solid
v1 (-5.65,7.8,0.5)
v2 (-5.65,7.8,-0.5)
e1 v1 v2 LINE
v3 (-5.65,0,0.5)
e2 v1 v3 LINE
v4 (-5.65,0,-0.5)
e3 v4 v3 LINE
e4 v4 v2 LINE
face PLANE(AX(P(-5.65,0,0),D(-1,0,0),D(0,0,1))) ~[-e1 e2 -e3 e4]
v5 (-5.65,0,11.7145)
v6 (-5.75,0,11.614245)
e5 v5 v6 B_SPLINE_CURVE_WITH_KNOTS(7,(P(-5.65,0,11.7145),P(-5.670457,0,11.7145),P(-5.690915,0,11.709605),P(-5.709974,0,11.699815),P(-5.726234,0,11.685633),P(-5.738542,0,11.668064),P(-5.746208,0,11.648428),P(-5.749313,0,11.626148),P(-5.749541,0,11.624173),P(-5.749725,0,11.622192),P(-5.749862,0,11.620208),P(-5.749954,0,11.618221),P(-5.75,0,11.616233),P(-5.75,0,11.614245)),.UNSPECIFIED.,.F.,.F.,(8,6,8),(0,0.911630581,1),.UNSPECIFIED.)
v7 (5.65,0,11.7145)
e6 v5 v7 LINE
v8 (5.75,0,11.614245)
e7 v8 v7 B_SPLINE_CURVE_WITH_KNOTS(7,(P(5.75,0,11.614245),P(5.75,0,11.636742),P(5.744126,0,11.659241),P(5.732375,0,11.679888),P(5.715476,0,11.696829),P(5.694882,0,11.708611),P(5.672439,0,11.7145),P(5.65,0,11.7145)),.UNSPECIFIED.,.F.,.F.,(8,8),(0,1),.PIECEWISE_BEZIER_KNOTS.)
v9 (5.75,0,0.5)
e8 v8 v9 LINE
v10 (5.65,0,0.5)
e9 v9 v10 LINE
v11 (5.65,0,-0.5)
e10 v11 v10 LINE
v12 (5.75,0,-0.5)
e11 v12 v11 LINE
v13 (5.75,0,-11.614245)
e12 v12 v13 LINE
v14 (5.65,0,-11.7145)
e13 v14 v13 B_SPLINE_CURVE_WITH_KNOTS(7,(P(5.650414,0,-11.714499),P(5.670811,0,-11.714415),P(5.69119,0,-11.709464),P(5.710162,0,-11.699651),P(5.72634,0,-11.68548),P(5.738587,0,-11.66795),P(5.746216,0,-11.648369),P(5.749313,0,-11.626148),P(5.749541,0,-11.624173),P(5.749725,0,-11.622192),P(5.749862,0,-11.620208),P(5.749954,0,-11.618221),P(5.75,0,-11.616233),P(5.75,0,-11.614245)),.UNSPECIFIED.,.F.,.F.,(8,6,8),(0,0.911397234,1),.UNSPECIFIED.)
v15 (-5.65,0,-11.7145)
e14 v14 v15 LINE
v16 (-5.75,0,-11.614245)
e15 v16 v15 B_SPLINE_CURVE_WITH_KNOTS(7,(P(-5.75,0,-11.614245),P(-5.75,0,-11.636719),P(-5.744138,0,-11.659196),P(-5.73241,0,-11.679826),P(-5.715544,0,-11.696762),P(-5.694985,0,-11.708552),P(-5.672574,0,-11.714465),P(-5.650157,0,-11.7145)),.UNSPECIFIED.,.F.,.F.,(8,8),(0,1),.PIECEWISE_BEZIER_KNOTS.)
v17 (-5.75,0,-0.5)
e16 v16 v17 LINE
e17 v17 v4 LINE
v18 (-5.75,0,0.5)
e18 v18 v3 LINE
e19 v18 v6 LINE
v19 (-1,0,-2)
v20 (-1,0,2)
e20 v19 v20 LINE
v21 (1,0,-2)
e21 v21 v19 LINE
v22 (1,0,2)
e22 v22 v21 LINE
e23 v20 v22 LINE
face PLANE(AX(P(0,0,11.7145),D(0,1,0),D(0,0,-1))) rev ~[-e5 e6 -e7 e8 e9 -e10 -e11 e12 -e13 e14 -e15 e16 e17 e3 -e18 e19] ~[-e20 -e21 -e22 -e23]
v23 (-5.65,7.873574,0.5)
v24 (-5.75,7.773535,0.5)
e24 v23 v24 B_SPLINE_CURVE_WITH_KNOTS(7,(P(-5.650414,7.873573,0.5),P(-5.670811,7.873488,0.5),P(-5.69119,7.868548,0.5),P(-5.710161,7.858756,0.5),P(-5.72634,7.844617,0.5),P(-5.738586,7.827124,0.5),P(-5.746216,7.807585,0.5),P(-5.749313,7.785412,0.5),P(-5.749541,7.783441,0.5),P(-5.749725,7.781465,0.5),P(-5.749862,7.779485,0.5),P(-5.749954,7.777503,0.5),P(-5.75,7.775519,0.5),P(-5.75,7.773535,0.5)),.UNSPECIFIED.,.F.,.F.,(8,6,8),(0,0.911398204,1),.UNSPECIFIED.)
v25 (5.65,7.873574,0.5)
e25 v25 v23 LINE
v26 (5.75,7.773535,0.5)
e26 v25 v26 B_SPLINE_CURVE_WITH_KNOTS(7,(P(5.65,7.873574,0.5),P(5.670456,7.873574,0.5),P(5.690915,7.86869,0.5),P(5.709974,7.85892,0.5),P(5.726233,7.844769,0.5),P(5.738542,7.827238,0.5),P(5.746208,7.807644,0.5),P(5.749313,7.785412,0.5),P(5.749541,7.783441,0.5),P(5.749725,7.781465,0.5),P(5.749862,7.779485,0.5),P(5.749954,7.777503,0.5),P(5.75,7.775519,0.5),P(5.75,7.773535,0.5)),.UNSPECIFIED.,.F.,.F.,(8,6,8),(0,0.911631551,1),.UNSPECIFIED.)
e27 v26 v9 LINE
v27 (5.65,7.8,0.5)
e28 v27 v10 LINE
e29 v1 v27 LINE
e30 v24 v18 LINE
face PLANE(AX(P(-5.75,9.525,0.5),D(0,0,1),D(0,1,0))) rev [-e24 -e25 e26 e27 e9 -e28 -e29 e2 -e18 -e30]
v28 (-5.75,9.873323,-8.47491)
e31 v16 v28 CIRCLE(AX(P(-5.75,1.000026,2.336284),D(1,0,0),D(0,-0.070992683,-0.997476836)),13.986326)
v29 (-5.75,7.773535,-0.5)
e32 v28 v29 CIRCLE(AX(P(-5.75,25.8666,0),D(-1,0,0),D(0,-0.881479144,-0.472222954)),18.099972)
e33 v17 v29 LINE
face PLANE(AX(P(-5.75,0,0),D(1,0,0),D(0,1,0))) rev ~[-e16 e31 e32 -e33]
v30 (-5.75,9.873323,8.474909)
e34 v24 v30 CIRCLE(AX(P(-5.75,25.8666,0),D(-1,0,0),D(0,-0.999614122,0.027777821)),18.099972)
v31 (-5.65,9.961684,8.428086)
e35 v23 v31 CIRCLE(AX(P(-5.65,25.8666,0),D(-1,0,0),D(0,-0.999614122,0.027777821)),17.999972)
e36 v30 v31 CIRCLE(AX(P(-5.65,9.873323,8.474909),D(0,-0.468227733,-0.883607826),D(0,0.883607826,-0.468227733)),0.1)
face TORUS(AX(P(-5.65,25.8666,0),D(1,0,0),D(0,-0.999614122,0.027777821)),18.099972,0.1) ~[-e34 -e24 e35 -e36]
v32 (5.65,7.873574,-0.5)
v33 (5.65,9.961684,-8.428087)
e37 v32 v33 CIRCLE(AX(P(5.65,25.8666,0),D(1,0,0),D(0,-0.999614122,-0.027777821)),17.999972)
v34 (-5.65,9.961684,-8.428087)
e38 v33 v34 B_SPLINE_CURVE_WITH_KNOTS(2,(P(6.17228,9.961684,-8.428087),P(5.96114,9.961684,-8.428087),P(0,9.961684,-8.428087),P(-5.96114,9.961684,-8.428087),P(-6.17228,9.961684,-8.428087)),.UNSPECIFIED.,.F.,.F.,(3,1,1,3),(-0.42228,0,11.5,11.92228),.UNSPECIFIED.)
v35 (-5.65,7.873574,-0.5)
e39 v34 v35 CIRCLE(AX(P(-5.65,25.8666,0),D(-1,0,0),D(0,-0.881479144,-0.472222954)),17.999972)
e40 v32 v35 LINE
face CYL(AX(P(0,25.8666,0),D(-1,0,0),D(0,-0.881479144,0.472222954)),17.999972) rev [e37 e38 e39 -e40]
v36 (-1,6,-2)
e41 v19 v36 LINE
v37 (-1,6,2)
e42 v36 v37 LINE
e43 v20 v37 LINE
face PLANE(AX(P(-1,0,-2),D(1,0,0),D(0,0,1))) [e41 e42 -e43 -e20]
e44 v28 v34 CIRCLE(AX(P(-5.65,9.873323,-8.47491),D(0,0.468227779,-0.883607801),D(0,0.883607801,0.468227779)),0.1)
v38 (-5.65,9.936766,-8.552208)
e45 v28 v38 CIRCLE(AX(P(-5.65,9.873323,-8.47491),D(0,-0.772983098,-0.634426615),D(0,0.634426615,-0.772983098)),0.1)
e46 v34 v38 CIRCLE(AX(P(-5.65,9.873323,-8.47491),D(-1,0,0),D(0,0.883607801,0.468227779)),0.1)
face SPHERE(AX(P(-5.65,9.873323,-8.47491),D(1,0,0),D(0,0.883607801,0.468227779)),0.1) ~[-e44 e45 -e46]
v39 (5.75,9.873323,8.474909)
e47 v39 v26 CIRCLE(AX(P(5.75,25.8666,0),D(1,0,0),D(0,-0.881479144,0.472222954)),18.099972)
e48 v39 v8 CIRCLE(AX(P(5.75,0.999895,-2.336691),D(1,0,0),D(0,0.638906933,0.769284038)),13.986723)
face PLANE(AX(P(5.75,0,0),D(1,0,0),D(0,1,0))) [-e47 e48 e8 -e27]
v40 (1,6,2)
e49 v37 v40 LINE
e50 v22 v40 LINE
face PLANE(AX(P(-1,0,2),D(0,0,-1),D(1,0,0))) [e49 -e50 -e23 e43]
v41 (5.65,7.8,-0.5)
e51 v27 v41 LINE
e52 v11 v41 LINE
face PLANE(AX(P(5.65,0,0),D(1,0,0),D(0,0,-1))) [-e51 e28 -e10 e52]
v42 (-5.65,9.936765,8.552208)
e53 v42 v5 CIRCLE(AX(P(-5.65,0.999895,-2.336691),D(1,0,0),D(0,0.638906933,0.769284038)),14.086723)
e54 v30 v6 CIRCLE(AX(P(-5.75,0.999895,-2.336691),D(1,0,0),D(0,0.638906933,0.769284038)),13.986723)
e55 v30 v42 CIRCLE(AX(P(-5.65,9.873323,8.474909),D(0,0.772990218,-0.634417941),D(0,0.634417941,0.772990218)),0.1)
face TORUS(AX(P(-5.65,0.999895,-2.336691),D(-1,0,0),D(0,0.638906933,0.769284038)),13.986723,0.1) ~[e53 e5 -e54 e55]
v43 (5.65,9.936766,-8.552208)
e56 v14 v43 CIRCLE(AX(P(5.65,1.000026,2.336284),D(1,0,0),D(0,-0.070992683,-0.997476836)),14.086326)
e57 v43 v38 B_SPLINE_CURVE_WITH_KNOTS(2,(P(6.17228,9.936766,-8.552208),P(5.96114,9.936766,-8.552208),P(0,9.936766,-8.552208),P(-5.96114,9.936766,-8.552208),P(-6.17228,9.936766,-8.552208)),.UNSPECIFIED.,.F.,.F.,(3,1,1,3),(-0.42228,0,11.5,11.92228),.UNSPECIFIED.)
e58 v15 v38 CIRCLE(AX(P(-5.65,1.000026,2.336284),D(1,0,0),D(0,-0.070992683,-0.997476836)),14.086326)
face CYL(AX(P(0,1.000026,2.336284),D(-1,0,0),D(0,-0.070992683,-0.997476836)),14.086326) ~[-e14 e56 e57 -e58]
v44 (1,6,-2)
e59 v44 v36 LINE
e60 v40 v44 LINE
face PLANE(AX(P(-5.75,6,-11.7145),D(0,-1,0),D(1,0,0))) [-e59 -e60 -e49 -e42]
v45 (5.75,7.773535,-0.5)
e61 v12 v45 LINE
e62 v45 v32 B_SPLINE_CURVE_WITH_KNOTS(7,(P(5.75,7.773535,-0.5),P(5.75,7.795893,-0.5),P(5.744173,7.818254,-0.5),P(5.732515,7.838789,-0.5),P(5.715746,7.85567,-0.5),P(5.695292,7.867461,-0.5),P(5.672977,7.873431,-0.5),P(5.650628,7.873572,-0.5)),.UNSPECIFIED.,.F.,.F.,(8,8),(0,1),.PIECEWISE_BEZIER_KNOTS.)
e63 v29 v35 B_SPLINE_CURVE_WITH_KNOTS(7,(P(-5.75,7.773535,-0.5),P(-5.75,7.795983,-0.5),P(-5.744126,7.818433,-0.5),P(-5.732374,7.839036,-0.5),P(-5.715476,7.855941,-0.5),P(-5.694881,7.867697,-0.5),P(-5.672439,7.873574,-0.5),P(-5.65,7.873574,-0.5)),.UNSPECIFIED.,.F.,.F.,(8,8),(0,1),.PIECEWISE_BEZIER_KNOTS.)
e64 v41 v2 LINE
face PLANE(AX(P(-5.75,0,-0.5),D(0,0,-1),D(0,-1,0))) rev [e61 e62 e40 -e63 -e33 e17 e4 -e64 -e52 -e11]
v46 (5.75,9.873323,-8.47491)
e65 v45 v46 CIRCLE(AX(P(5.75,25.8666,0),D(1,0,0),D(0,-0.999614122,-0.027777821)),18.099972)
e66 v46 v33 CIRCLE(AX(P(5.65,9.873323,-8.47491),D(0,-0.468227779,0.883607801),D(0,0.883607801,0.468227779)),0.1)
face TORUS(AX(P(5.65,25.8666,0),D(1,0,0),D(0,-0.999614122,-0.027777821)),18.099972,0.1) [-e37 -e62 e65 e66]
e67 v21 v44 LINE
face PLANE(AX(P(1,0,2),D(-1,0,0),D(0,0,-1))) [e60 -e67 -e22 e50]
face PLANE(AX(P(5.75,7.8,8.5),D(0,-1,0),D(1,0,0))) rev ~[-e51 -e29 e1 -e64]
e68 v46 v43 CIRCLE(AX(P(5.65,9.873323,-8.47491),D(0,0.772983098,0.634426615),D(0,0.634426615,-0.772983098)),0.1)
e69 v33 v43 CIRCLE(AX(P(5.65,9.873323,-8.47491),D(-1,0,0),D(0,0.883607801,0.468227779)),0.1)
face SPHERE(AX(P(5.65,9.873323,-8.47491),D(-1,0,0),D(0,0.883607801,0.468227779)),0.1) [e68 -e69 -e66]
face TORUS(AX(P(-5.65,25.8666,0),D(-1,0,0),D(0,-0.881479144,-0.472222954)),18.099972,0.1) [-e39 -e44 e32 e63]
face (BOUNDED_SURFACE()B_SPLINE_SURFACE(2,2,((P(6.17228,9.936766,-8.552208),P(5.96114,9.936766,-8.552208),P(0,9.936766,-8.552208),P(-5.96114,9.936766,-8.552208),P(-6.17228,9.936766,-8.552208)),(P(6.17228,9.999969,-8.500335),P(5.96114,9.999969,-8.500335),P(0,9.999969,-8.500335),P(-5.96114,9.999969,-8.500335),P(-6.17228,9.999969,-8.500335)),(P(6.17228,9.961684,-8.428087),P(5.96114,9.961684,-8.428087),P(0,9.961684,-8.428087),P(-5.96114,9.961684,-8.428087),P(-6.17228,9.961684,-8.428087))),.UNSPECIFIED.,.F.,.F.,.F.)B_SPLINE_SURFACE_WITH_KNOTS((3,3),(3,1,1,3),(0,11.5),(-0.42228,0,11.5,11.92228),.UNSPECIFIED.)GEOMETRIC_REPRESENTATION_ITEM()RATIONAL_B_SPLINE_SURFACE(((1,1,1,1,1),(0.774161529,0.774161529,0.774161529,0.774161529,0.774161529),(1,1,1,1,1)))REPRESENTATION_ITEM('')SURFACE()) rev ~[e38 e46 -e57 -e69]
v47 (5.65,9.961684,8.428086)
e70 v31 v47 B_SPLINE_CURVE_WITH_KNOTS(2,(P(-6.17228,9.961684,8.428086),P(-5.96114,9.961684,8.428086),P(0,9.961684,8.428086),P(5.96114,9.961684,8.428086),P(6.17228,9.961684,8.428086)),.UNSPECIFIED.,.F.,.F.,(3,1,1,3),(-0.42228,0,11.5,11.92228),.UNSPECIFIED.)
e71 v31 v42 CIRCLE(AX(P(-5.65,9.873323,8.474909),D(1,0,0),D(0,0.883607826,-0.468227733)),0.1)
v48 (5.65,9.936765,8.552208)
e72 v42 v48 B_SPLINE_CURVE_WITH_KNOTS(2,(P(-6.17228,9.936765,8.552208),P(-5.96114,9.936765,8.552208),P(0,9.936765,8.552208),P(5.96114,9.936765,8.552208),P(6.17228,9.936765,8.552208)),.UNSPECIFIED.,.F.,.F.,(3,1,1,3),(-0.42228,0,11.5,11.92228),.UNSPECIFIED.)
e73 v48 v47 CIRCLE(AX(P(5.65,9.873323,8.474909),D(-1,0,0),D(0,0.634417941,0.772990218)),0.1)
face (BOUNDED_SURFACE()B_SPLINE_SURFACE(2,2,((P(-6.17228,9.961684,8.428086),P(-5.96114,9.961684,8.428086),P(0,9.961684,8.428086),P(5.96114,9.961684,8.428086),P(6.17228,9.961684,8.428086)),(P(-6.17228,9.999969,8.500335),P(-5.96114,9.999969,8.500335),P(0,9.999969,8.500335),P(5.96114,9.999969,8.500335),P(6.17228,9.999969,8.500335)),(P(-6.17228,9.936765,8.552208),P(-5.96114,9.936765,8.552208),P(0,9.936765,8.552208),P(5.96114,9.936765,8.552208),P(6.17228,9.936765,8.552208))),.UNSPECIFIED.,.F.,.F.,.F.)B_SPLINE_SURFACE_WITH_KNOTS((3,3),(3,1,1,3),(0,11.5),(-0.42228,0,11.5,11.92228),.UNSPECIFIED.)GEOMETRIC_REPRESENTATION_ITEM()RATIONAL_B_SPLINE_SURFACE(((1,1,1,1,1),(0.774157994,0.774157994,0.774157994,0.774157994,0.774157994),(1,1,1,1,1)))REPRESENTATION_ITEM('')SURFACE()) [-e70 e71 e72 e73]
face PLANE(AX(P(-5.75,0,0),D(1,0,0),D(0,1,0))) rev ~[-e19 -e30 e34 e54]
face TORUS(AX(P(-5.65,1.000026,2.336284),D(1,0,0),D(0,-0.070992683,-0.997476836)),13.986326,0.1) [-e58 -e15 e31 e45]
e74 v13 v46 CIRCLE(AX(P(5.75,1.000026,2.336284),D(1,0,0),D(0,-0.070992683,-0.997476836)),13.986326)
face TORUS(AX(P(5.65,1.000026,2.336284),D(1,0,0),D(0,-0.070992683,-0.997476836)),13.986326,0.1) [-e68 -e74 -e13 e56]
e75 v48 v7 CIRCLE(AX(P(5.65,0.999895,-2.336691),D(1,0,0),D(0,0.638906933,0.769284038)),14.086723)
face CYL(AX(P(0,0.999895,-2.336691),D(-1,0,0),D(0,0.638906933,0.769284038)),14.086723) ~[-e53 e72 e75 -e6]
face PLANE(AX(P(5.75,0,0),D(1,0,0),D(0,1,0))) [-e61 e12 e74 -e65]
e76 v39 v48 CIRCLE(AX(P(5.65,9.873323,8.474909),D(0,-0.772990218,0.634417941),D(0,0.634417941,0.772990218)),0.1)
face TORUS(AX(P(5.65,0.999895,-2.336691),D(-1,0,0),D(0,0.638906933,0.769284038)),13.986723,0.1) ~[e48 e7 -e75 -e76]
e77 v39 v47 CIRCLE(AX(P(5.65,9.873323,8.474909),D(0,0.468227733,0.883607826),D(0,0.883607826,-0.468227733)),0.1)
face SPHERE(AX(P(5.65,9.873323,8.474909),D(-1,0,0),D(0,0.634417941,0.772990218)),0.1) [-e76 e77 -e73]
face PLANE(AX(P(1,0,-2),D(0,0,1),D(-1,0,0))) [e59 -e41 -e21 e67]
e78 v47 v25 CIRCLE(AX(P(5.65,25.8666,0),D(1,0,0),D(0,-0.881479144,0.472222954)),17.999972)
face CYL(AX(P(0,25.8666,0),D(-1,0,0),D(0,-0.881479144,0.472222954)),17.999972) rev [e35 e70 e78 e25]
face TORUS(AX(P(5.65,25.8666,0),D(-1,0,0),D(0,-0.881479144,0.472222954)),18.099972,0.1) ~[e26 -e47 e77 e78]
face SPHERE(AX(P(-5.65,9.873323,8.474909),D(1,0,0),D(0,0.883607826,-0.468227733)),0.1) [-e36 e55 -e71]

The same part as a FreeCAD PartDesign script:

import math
import FreeCAD as App
import Part
import Sketcher

V = App.Vector
Q = App.Units.Quantity


def edges_at(feature, points):
    """Names of the edges that pass closest to the given points."""
    edges = feature.Shape.Edges
    near = lambda p: min(range(len(edges)), key=lambda i: edges[i].distToShape(Part.Vertex(*p))[0])
    return sorted({f"Edge{near(p) + 1}" for p in points})

doc = App.newDocument("Part")
body = doc.addObject("PartDesign::Body", "Body")

sketch1 = doc.addObject("Sketcher::SketchObject", "Sketch")
body.addObject(sketch1)
sketch1.AttachmentSupport = (doc.YZ_Plane, [""])
sketch1.MapMode = "FlatFace"
sketch1.addGeometry([
    Part.ArcOfCircle(Part.Circle(V(1, -2, 0), V(0, 0, 1), 14), math.radians(50), math.radians(94)),
    Part.LineSegment(V(0, 12, 0), V(0, -12, 0)),
    Part.ArcOfCircle(Part.Circle(V(1, 2, 0), V(0, 0, 1), 14), math.radians(-94), math.radians(-50)),
    Part.ArcOfCircle(Part.Circle(V(26, 0, 0), V(0, 0, 1), 18), math.radians(152), math.radians(208)),
], False)
sketch1.addConstraint([
    Sketcher.Constraint("Coincident", 0, 2, 1, 1),
    Sketcher.Constraint("Coincident", 1, 2, 2, 1),
    Sketcher.Constraint("Coincident", 2, 2, 3, 2),
    Sketcher.Constraint("Coincident", 3, 1, 0, 1),
    Sketcher.Constraint("Vertical", 1),
    Sketcher.Constraint("Equal", 0, 2),
    Sketcher.Constraint("Symmetric", 0, 2, 1, 2, -1, 1),
    Sketcher.Constraint("Symmetric", 2, 2, 3, 1, -1),
    Sketcher.Constraint("Radius", 3, Q("18 mm")),
    Sketcher.Constraint("DistanceX", -1, 1, 0, 3, Q("1 mm")),
    Sketcher.Constraint("DistanceX", -1, 1, 2, 2, Q("10 mm")),
    Sketcher.Constraint("DistanceY", 2, 2, 3, 1, Q("17 mm")),
    Sketcher.Constraint("Radius", 0, Q("14.0865 mm")),
])
pad1 = doc.addObject("PartDesign::Pad", "Pad")
body.addObject(pad1)
pad1.Profile = sketch1
pad1.Length = 11.5
pad1.Midplane = True

sketch2 = doc.addObject("Sketcher::SketchObject", "Sketch001")
body.addObject(sketch2)
sketch2.AttachmentSupport = (doc.XZ_Plane, [""])
sketch2.MapMode = "FlatFace"
sketch2.addGeometry([
    Part.LineSegment(V(1, 2, 0), V(-1, 2, 0)),
    Part.LineSegment(V(-1, 2, 0), V(-1, -2, 0)),
    Part.LineSegment(V(-1, -2, 0), V(1, -2, 0)),
    Part.LineSegment(V(1, -2, 0), V(1, 2, 0)),
], False)
sketch2.addConstraint([
    Sketcher.Constraint("Coincident", 0, 2, 1, 1),
    Sketcher.Constraint("Coincident", 1, 2, 2, 1),
    Sketcher.Constraint("Coincident", 2, 2, 3, 1),
    Sketcher.Constraint("Coincident", 3, 2, 0, 1),
    Sketcher.Constraint("Horizontal", 0),
    Sketcher.Constraint("Vertical", 1),
    Sketcher.Constraint("Horizontal", 2),
    Sketcher.Constraint("Vertical", 3),
    Sketcher.Constraint("Symmetric", 0, 2, 2, 2, -1, 1),
    Sketcher.Constraint("DistanceX", 0, 2, 0, 1, Q("2 mm")),
    Sketcher.Constraint("DistanceY", 1, 2, 1, 1, Q("4 mm")),
])
pocket1 = doc.addObject("PartDesign::Pocket", "Pocket")
body.addObject(pocket1)
pocket1.Profile = sketch2
pocket1.Length = 6

sketch3 = doc.addObject("Sketcher::SketchObject", "Sketch002")
body.addObject(sketch3)
sketch3.AttachmentSupport = (doc.YZ_Plane, [""])
sketch3.MapMode = "FlatFace"
sketch3.AttachmentOffset = App.Placement(V(0, 0, 5.75), App.Rotation())
sketch3.addGeometry([
    Part.LineSegment(V(0, 0.5, 0), V(0, -0.5, 0)),
    Part.LineSegment(V(0, -0.5, 0), V(9.5, -0.5, 0)),
    Part.LineSegment(V(9.5, -0.5, 0), V(9.5, 0.5, 0)),
    Part.LineSegment(V(9.5, 0.5, 0), V(0, 0.5, 0)),
], False)
sketch3.addConstraint([
    Sketcher.Constraint("Coincident", 0, 2, 1, 1),
    Sketcher.Constraint("Coincident", 1, 2, 2, 1),
    Sketcher.Constraint("Coincident", 2, 2, 3, 1),
    Sketcher.Constraint("Coincident", 3, 2, 0, 1),
    Sketcher.Constraint("Vertical", 0),
    Sketcher.Constraint("Horizontal", 1),
    Sketcher.Constraint("Vertical", 2),
    Sketcher.Constraint("Horizontal", 3),
    Sketcher.Constraint("Symmetric", 0, 2, 3, 2, -1, 1),
    Sketcher.Constraint("DistanceY", 0, 2, 0, 1, Q("1 mm")),
    Sketcher.Constraint("DistanceX", 1, 1, 1, 2, Q("9.525 mm")),
])
pocket2 = doc.addObject("PartDesign::Pocket", "Pocket001")
body.addObject(pocket2)
pocket2.Profile = sketch3
pocket2.Length = 0.1
doc.recompute()

mirrored = doc.addObject("PartDesign::Mirrored", "Mirrored")
body.addObject(mirrored)
mirrored.Originals = [pocket2]
mirrored.MirrorPlane = (doc.YZ_Plane, [""])
body.Tip = mirrored

sketch4 = doc.addObject("Sketcher::SketchObject", "Sketch003")
body.addObject(sketch4)
sketch4.AttachmentSupport = (doc.XZ_Plane, [""])
sketch4.MapMode = "FlatFace"
sketch4.AttachmentOffset = App.Placement(V(0, 0, -10), App.Rotation())
sketch4.addGeometry([
    Part.LineSegment(V(5.7, 0.5, 0), V(-5.7, 0.5, 0)),
    Part.LineSegment(V(-5.7, 0.5, 0), V(-5.7, -0.5, 0)),
    Part.LineSegment(V(-5.7, -0.5, 0), V(5.7, -0.5, 0)),
    Part.LineSegment(V(5.7, -0.5, 0), V(5.7, 0.5, 0)),
], False)
sketch4.addConstraint([
    Sketcher.Constraint("Coincident", 0, 2, 1, 1),
    Sketcher.Constraint("Coincident", 1, 2, 2, 1),
    Sketcher.Constraint("Coincident", 2, 2, 3, 1),
    Sketcher.Constraint("Coincident", 3, 2, 0, 1),
    Sketcher.Constraint("Horizontal", 0),
    Sketcher.Constraint("Vertical", 1),
    Sketcher.Constraint("Horizontal", 2),
    Sketcher.Constraint("Vertical", 3),
    Sketcher.Constraint("Symmetric", 0, 2, 2, 2, -1, 1),
    Sketcher.Constraint("DistanceY", 1, 2, 1, 1, Q("1 mm")),
    Sketcher.Constraint("DistanceX", 0, 2, 0, 1, Q("11.3 mm")),
])
pocket3 = doc.addObject("PartDesign::Pocket", "Pocket002")
body.addObject(pocket3)
pocket3.Profile = sketch4
pocket3.Length = 2.2
pocket3.Reversed = True
doc.recompute()

fillet = doc.addObject("PartDesign::Fillet", "Fillet")
body.addObject(fillet)
fillet.Base = (pocket3, edges_at(pocket3, [
    (-5.75, 5.311, -11.074),
    (5.75, 5.311, -11.074),
    (0, 10, -8.5),
    (5.75, 8.471, -4.624),
    (-5.75, 8.471, -4.624),
    (-5.75, 8.471, 4.624),
    (5.75, 8.471, 4.624),
    (-5.75, 5.311, 11.074),
    (0, 10, 8.5),
    (5.75, 5.311, 11.074),
]))
fillet.Radius = 0.1

doc.recompute()
